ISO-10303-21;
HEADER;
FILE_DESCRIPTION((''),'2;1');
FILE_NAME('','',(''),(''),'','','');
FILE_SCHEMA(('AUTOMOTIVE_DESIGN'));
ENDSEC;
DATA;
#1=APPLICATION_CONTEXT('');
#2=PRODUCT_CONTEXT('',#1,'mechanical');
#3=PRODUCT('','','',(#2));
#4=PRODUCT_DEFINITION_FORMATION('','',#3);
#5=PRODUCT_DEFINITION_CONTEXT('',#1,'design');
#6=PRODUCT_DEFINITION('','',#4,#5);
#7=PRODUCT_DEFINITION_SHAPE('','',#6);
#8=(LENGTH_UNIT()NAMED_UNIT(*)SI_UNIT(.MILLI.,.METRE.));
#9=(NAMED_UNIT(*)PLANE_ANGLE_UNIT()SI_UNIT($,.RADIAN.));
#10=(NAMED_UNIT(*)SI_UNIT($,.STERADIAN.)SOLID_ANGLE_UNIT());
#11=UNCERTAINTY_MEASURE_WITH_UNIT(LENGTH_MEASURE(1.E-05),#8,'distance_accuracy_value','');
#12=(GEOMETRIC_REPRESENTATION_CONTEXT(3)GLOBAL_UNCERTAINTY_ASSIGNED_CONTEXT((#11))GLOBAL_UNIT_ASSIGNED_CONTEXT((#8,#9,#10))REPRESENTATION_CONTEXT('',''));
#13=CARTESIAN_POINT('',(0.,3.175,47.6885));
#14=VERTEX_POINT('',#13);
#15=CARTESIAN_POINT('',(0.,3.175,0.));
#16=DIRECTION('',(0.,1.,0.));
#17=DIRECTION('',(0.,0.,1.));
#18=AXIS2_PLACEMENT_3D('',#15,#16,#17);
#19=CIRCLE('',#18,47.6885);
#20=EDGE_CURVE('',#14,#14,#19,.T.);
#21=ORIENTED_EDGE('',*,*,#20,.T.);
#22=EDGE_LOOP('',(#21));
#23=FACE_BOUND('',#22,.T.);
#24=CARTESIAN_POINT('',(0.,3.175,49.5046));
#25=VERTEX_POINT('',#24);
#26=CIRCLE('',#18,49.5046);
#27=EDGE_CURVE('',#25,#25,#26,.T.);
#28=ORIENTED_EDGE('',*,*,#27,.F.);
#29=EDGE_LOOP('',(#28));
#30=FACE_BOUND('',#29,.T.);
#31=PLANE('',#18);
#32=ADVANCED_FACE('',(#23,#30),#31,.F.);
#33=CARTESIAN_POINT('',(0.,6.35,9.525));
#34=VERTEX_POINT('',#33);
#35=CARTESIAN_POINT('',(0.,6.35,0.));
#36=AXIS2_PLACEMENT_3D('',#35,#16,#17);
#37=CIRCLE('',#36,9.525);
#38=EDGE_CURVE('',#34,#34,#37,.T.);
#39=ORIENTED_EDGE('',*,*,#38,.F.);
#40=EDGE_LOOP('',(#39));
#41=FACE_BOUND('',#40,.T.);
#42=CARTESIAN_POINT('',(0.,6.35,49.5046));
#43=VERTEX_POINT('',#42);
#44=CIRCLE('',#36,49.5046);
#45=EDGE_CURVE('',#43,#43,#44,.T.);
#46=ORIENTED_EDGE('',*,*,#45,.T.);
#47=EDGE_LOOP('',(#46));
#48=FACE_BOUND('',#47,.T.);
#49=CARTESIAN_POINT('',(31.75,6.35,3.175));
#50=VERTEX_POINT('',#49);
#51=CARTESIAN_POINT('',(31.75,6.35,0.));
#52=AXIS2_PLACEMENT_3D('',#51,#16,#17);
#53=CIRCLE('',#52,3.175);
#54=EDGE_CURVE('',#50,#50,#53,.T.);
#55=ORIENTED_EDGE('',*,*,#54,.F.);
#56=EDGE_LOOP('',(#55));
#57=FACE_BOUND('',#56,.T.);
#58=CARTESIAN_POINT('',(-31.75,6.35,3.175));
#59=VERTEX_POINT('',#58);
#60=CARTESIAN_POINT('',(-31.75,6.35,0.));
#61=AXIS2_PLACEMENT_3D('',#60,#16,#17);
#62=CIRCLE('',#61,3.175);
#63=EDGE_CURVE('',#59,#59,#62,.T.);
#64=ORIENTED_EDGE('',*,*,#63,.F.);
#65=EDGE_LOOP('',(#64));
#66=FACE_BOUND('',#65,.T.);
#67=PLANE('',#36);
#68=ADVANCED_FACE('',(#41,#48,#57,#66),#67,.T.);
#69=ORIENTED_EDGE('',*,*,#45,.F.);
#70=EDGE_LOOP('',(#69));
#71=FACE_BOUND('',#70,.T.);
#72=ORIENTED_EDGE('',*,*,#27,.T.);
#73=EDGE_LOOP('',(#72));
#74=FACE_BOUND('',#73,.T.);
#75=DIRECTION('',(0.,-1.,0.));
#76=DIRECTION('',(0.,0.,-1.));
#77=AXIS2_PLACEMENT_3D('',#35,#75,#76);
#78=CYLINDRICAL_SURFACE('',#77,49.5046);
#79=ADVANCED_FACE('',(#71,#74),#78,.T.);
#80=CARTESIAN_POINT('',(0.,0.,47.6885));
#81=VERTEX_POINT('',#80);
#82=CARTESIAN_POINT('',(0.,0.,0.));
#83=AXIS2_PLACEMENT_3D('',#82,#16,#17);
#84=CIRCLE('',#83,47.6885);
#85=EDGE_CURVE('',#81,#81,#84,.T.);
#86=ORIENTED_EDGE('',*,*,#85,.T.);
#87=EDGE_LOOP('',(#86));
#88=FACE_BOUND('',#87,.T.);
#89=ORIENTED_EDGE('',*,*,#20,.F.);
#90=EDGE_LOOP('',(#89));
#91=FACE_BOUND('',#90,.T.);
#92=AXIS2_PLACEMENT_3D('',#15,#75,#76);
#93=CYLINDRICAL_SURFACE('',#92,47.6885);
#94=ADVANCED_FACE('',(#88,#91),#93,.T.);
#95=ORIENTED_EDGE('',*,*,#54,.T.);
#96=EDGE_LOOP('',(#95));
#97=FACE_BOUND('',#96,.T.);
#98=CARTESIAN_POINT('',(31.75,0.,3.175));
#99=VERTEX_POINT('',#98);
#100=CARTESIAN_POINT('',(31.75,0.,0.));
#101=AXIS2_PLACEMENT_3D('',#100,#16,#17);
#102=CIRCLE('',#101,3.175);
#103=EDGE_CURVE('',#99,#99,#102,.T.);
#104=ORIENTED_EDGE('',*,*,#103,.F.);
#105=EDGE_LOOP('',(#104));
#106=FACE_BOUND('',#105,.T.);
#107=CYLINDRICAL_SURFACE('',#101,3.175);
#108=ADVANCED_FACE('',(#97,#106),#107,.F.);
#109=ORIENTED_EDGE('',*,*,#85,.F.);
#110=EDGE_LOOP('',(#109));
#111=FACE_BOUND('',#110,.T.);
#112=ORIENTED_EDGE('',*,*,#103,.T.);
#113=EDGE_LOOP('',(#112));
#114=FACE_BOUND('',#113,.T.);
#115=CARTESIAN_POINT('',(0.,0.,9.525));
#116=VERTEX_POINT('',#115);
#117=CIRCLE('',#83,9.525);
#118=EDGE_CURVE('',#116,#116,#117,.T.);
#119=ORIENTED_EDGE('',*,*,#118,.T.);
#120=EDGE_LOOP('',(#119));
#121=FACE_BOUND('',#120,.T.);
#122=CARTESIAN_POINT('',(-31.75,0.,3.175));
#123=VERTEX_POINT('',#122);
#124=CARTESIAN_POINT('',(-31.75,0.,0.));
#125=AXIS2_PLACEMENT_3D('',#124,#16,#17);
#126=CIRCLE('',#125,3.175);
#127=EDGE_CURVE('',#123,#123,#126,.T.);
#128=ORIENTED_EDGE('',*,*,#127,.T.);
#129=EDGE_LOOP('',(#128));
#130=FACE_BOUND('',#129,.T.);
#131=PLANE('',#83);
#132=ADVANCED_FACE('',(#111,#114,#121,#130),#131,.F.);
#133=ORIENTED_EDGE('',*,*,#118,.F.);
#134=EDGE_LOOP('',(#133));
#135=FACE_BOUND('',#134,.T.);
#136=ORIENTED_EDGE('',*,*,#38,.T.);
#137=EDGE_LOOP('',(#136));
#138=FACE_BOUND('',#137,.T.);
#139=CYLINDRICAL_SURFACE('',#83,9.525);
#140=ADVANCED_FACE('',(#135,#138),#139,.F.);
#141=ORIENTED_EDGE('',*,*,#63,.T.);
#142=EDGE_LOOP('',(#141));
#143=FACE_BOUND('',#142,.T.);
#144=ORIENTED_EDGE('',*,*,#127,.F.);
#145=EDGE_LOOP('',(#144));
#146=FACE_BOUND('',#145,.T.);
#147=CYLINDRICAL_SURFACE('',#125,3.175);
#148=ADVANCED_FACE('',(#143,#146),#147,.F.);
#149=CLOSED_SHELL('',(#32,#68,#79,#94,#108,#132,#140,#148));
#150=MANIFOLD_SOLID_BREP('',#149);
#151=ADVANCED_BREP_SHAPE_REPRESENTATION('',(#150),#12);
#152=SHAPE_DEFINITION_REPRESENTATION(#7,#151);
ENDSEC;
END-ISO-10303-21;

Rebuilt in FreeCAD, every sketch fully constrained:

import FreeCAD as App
import Part
import Sketcher

V = App.Vector
Q = App.Units.Quantity

doc = App.newDocument("Part")
body = doc.addObject("PartDesign::Body", "Body")

# Sketch on XZ plane
sketch1 = body.newObject("Sketcher::SketchObject", "Sketch")
sketch1.AttachmentSupport = (doc.getObject("XZ_Plane"), [""])
sketch1.MapMode = "FlatFace"
sketch1.addGeometry(Part.Circle(V(0, 0, 0), V(0, 0, 1), 48), False)
sketch1.addConstraint([
    Sketcher.Constraint("Coincident", 0, 3, -1, 1),
    Sketcher.Constraint("Diameter", 0, Q("3.755 in")),
])
pad1 = body.newObject("PartDesign::Pad", "Pad")
pad1.Profile = sketch1
pad1.Length = Q("0.125 in")
pad1.Reversed = True

# Sketch on XZ plane
sketch2 = body.newObject("Sketcher::SketchObject", "Sketch001")
sketch2.AttachmentSupport = (doc.getObject("XZ_Plane"), [""])
sketch2.MapMode = "FlatFace"
sketch2.AttachmentOffset = App.Placement(V(0, 0, -0.125 * 25.4), App.Rotation())
sketch2.addGeometry(Part.Circle(V(0, 0, 0), V(0, 0, 1), 50), False)
sketch2.addConstraint([
    Sketcher.Constraint("Coincident", 0, 3, -1, 1),
    Sketcher.Constraint("Diameter", 0, Q("3.898 in")),
])
pad2 = body.newObject("PartDesign::Pad", "Pad001")
pad2.Profile = sketch2
pad2.Length = Q("0.125 in")
pad2.Reversed = True

# Sketch on XZ plane
sketch3 = body.newObject("Sketcher::SketchObject", "Sketch002")
sketch3.AttachmentSupport = (doc.getObject("XZ_Plane"), [""])
sketch3.MapMode = "FlatFace"
sketch3.AttachmentOffset = App.Placement(V(0, 0, -0.25 * 25.4), App.Rotation())
sketch3.addGeometry([
    Part.Circle(V(-31.8, 0, 0), V(0, 0, 1), 3.2),
    Part.Circle(V(31.8, 0, 0), V(0, 0, 1), 3.2),
    Part.Circle(V(0, 0, 0), V(0, 0, 1), 9.5),
], False)
sketch3.addConstraint([
    Sketcher.Constraint("Coincident", 2, 3, -1, 1),
    Sketcher.Constraint("Equal", 0, 1),
    Sketcher.Constraint("Symmetric", 0, 3, 1, 3, -1, 1),
    Sketcher.Constraint("PointOnObject", 0, 3, -1),
    Sketcher.Constraint("Diameter", 0, Q("0.25 in")),
    Sketcher.Constraint("Diameter", 2, Q("0.75 in")),
    Sketcher.Constraint("DistanceX", 0, 3, 1, 3, Q("2.5 in")),
])
pocket1 = body.newObject("PartDesign::Pocket", "Pocket")
pocket1.Profile = sketch3
pocket1.Type = "ThroughAll"
pocket1.Reversed = True

doc.recompute()
